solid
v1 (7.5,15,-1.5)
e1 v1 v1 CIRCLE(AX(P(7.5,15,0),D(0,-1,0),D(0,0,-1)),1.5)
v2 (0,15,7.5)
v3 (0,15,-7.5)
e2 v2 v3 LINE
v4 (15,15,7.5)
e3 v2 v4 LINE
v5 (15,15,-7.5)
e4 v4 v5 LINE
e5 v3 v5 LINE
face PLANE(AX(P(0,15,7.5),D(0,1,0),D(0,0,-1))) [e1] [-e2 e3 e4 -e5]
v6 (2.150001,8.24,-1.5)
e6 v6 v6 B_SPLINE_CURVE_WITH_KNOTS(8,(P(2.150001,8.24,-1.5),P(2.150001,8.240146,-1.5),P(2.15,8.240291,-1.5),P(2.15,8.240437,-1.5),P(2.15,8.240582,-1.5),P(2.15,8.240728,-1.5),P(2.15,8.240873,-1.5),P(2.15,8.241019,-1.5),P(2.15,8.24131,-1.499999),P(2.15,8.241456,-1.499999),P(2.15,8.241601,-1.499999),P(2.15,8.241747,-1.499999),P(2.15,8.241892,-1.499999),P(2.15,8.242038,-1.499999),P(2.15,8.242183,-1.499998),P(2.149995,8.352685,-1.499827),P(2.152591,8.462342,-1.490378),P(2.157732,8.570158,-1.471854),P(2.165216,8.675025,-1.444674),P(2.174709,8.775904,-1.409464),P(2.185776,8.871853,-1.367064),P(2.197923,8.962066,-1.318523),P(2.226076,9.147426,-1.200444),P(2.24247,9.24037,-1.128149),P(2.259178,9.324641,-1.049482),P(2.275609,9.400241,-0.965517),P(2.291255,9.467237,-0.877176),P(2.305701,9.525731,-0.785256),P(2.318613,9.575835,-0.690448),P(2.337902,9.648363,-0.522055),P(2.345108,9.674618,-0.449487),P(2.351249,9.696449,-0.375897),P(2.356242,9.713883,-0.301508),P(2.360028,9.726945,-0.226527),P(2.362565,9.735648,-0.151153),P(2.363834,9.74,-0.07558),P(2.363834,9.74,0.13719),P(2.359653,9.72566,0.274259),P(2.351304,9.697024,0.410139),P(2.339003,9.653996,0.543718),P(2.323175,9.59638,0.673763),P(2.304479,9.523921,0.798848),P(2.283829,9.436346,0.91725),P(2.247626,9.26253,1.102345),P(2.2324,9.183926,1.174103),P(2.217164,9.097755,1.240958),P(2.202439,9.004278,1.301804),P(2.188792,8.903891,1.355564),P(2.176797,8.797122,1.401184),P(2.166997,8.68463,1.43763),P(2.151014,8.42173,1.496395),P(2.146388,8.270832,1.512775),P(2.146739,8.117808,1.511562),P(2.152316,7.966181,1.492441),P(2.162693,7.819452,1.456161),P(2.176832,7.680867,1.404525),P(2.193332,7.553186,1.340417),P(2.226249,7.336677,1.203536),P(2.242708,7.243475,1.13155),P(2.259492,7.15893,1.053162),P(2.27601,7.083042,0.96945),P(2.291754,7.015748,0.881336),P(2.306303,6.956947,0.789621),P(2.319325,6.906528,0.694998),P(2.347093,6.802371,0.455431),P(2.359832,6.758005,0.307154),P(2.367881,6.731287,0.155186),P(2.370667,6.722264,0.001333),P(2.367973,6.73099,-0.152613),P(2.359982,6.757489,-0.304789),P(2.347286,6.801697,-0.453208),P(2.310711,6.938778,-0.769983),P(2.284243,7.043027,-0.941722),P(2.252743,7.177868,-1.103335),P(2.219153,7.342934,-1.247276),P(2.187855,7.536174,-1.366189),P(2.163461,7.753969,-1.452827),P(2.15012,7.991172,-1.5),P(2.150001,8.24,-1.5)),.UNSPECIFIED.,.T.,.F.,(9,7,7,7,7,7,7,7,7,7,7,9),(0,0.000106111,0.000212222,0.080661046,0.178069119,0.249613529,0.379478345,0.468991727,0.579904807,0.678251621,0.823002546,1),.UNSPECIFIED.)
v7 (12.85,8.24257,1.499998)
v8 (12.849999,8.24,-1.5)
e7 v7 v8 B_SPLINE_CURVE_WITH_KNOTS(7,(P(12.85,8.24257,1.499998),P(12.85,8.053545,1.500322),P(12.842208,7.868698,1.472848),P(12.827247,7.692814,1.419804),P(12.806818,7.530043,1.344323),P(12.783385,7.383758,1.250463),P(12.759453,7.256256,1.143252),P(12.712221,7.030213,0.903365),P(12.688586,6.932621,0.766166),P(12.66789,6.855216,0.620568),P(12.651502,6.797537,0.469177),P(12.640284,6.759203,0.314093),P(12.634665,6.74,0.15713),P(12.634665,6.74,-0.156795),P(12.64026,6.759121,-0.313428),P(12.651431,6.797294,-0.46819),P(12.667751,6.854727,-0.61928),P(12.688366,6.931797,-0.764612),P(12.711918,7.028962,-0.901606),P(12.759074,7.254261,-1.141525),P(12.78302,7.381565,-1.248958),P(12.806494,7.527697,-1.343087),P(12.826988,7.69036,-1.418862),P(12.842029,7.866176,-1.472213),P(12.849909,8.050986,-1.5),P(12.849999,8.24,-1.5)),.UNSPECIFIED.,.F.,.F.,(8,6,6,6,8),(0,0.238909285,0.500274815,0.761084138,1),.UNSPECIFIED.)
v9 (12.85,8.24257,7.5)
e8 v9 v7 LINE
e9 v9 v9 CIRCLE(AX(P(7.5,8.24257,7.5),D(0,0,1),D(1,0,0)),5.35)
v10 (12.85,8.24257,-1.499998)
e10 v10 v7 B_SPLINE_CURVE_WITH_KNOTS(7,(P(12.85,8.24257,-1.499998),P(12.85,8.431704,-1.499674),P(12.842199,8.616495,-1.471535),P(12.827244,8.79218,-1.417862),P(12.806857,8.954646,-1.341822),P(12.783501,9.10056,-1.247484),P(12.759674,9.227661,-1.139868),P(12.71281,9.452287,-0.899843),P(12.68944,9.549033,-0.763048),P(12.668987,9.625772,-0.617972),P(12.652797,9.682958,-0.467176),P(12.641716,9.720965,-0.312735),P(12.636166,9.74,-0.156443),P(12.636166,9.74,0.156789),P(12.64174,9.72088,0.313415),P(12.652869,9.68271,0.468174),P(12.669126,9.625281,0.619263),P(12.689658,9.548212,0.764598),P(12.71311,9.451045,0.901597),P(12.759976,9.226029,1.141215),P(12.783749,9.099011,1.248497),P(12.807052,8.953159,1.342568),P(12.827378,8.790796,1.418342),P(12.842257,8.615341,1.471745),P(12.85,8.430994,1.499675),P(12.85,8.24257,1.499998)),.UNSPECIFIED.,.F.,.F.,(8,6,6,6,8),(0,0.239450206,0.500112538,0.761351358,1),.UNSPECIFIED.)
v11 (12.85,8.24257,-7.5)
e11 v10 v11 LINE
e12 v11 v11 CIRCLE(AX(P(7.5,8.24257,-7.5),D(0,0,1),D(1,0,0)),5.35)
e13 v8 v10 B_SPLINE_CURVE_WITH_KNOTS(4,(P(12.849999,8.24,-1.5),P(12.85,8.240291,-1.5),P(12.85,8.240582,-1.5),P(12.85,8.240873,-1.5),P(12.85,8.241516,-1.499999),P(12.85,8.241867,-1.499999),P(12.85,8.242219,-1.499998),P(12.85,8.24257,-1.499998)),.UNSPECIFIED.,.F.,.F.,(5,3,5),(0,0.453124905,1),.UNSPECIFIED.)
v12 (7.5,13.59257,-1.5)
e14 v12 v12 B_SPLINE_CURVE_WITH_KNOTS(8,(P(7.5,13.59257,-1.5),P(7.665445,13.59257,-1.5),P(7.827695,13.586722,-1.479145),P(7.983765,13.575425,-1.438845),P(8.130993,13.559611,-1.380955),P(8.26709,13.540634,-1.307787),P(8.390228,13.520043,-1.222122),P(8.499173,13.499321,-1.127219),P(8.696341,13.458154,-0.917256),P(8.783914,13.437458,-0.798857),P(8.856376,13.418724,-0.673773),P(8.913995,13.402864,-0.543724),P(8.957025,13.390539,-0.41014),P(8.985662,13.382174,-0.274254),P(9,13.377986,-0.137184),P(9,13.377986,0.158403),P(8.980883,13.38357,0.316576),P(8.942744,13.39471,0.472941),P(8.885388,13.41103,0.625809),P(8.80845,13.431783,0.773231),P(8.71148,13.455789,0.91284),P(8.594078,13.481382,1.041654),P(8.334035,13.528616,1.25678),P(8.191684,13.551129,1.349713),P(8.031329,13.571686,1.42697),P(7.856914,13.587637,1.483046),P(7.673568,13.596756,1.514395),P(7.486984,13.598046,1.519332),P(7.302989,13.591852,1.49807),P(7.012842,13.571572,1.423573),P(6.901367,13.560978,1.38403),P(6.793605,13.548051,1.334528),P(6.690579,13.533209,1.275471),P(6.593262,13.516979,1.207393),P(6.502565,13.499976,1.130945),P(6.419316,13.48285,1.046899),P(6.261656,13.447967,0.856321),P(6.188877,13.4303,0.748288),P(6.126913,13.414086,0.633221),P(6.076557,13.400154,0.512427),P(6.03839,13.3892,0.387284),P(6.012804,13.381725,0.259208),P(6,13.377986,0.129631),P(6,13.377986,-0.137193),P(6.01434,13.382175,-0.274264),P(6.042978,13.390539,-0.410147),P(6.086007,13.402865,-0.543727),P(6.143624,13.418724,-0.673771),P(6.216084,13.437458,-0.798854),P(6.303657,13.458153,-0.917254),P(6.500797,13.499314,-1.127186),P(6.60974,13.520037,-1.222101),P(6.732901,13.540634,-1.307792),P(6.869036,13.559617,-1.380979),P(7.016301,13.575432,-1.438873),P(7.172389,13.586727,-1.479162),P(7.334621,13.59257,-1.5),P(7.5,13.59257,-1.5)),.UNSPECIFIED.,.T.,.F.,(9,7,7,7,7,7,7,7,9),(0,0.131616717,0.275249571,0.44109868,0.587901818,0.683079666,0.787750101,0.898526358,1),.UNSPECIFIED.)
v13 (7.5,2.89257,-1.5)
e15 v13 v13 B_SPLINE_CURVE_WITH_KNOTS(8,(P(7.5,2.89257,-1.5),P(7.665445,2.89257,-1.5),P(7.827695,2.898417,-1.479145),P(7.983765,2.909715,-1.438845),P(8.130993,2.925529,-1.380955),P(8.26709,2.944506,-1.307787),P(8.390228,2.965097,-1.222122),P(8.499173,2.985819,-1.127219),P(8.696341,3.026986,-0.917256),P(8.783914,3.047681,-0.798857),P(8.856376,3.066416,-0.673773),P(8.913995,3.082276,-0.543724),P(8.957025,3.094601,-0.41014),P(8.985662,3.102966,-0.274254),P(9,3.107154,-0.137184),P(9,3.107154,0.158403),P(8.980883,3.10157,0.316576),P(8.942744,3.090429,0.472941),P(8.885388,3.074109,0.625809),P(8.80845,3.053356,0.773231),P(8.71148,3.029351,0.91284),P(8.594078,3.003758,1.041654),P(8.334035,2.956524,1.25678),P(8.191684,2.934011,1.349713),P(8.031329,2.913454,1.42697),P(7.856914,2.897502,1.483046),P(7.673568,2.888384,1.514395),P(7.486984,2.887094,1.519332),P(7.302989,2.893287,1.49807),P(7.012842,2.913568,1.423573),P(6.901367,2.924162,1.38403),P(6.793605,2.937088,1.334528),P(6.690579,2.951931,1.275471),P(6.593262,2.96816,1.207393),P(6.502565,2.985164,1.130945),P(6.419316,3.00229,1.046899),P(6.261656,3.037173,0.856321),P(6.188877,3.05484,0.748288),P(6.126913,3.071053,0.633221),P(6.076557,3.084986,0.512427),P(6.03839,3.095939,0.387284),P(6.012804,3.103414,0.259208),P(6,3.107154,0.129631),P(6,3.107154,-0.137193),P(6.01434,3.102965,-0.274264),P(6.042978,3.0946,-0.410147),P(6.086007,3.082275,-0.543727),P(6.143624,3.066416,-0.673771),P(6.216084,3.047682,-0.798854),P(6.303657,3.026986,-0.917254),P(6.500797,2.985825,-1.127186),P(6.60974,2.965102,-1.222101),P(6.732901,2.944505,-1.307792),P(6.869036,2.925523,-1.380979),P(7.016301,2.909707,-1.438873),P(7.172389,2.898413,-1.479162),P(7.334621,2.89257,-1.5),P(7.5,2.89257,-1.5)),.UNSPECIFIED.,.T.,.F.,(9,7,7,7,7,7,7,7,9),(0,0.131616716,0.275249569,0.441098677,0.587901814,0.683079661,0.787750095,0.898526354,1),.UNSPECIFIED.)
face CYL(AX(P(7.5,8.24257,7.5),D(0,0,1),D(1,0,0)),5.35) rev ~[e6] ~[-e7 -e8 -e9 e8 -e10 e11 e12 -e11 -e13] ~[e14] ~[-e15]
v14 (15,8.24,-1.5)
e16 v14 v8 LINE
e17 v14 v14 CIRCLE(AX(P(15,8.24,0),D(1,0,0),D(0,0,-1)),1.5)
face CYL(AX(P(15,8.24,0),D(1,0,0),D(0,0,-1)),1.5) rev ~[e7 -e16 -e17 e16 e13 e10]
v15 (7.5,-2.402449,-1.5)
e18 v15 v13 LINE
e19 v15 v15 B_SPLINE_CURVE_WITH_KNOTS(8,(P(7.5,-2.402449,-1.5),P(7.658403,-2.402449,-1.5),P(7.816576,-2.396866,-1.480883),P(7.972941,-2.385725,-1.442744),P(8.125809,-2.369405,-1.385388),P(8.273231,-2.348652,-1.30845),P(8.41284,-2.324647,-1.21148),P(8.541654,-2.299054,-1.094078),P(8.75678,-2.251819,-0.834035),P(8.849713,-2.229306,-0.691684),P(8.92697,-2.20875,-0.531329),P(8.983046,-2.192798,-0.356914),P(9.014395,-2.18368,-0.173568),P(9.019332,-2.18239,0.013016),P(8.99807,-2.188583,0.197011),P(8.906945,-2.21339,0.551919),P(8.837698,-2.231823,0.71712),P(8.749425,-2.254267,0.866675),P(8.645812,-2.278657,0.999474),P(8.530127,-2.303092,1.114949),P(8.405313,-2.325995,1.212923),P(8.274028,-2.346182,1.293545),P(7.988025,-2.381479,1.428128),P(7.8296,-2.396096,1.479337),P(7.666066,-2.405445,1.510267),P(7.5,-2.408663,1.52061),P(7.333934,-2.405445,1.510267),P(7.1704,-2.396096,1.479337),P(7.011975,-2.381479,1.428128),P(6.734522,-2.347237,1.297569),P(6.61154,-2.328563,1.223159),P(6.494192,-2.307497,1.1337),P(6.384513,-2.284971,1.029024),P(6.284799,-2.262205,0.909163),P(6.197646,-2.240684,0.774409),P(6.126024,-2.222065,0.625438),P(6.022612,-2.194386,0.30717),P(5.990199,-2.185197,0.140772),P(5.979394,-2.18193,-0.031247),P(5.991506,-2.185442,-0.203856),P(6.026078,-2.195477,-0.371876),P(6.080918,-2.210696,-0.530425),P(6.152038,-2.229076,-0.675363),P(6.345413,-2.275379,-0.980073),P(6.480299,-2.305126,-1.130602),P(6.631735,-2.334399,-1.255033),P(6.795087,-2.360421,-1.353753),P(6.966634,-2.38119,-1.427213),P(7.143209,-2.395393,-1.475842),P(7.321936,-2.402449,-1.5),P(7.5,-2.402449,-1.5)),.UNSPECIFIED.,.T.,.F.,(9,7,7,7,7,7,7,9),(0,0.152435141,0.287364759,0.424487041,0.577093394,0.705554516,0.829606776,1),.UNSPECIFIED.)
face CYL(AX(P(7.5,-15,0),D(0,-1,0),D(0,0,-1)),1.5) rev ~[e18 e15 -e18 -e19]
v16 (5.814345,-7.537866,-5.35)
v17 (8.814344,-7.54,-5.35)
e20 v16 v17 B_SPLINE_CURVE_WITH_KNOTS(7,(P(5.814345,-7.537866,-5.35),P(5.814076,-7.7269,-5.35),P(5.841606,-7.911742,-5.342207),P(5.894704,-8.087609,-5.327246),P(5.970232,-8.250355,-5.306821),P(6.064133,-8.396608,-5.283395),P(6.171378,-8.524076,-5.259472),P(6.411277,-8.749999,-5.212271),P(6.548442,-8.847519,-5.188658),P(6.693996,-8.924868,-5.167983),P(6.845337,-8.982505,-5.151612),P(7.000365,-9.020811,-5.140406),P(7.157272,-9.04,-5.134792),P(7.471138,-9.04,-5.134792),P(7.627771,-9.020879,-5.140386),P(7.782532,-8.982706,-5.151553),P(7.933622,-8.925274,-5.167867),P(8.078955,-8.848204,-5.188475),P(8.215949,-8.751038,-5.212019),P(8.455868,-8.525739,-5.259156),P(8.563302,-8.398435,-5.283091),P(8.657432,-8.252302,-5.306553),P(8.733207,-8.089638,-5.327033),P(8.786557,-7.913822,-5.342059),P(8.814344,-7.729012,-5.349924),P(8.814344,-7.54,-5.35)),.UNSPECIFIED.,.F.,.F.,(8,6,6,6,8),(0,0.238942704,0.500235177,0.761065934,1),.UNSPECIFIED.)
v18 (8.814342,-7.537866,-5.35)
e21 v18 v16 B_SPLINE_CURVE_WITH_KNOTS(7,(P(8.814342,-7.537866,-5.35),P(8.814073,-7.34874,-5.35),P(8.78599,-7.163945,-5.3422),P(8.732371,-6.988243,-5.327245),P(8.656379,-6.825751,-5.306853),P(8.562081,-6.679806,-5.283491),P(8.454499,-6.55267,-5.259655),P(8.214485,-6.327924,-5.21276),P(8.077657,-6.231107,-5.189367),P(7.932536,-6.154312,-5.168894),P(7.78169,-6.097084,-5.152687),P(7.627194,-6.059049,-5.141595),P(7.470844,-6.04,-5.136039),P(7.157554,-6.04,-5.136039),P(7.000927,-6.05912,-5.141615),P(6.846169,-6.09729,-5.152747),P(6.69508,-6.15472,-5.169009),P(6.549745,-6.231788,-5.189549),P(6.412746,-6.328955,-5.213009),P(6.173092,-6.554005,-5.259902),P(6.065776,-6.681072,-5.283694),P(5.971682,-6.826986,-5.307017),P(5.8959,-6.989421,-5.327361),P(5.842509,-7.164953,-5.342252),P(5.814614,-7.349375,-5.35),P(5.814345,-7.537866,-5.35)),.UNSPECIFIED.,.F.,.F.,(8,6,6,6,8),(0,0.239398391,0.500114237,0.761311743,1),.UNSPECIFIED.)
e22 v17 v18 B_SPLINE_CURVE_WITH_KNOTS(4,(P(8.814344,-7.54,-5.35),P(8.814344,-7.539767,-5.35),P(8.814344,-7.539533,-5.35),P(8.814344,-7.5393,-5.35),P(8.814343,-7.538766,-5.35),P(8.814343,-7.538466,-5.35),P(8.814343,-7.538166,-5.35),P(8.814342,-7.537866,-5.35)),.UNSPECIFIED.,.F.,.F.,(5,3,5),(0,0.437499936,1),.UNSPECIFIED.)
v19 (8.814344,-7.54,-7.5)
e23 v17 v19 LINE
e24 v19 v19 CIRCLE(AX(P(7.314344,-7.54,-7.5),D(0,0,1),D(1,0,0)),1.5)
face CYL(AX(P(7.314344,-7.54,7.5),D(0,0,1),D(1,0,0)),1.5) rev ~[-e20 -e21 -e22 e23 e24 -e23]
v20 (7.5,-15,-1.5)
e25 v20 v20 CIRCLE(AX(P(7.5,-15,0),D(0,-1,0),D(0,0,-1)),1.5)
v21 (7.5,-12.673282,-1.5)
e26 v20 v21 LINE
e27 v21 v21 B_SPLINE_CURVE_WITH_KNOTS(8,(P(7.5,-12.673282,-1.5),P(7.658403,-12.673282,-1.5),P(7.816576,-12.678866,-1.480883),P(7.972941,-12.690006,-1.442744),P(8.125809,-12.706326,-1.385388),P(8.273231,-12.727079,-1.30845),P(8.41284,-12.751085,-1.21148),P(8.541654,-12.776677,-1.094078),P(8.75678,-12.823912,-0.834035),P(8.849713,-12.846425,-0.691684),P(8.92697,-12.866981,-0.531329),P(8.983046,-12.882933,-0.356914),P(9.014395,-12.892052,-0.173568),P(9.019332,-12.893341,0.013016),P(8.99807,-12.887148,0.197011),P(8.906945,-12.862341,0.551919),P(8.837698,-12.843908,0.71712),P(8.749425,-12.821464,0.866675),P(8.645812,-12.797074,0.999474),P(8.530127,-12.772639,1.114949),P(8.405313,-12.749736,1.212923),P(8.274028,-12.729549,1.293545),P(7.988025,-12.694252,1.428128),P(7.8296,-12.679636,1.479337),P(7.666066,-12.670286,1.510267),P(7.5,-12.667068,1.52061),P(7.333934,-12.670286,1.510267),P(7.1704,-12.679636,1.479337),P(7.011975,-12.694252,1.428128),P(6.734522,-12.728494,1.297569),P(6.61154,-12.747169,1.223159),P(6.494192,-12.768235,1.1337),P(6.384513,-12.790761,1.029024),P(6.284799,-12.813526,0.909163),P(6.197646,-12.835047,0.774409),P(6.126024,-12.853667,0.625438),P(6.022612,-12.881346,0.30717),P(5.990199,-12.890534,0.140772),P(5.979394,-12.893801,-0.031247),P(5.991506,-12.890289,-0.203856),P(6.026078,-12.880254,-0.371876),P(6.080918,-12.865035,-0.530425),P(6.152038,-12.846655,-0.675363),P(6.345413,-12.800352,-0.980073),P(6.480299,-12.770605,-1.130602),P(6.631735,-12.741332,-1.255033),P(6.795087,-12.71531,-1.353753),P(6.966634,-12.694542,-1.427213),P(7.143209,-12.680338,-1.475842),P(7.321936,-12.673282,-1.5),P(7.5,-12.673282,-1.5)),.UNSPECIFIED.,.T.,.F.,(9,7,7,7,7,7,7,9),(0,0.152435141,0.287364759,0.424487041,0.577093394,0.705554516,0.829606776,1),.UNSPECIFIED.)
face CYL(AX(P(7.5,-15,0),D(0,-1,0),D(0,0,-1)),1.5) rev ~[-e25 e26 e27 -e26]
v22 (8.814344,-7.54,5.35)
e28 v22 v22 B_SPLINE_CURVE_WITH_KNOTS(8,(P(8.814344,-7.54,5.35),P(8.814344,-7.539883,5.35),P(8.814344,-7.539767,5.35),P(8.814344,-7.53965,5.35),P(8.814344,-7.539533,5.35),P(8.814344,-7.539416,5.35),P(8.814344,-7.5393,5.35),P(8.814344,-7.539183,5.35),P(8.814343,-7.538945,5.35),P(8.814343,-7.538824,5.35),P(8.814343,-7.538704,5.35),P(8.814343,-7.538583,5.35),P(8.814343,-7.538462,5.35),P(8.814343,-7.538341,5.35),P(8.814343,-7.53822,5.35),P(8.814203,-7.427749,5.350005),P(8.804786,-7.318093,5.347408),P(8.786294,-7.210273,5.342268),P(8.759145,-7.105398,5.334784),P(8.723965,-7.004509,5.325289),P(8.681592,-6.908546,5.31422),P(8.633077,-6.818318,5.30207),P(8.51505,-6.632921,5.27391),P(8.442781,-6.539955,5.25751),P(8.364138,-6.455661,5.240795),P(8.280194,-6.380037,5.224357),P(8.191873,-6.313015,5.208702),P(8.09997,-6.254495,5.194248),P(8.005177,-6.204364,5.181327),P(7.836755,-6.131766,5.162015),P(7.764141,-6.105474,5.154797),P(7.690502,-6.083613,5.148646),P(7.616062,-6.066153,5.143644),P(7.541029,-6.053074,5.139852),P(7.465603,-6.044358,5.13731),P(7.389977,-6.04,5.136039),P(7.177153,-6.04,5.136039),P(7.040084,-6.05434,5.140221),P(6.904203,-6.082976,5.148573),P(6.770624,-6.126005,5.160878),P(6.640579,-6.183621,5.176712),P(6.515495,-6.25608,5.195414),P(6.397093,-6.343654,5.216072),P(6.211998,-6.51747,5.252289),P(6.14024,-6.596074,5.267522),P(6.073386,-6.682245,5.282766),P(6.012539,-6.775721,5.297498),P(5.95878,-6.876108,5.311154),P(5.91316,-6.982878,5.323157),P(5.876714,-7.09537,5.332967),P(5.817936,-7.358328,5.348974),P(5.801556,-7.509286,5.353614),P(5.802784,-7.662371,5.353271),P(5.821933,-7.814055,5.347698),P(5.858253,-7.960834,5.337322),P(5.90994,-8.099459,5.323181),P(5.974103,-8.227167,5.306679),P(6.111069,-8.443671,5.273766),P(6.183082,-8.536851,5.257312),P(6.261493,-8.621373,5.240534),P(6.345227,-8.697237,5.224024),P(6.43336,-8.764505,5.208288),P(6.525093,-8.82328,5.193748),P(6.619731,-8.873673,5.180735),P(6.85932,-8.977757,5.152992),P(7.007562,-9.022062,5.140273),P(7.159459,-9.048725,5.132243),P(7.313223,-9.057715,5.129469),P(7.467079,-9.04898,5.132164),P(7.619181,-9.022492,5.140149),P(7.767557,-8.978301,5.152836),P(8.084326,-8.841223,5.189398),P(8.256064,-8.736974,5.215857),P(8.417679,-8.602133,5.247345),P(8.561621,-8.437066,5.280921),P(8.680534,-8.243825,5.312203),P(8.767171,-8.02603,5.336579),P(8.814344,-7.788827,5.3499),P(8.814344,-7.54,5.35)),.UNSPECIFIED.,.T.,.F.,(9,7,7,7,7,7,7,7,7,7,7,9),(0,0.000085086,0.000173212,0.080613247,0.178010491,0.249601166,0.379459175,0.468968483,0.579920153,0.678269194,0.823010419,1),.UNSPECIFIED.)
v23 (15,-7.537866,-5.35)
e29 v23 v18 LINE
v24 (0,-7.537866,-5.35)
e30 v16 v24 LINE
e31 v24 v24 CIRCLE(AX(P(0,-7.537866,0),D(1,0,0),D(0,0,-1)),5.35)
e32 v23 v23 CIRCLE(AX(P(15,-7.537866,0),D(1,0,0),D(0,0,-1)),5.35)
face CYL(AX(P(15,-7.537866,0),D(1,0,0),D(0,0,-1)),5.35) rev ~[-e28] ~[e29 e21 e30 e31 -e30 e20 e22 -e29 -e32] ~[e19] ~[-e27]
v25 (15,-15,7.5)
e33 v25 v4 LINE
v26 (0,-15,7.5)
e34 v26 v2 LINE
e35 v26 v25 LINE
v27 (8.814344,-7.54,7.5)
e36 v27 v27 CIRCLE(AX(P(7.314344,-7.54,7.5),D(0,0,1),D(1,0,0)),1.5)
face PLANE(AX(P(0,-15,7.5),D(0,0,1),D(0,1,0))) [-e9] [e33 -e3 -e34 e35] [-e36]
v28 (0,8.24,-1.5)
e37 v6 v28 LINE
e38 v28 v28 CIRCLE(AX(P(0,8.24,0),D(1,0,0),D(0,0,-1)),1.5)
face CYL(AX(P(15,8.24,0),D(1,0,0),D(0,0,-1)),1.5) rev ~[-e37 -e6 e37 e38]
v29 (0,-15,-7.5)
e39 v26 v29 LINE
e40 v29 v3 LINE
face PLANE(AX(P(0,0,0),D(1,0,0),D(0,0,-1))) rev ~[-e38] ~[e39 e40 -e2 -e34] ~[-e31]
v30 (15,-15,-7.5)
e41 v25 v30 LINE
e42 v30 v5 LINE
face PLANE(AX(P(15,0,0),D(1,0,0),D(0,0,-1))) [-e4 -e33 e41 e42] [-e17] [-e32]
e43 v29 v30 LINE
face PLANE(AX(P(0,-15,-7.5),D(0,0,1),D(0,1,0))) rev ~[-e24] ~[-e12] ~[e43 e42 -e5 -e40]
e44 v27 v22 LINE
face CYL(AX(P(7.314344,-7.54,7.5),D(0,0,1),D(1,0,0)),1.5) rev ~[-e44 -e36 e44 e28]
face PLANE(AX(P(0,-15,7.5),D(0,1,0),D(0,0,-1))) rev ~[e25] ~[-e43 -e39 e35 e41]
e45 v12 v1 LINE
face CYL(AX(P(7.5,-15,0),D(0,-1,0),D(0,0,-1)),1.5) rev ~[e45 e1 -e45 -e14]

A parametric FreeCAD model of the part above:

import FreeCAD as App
import Part
import Sketcher

V = App.Vector


def add_polygon(sketch, points):
    """Adds a closed chain of lines whose ends are joined by coincident constraints."""
    first, n = sketch.GeometryCount, len(points)
    for a, b in zip(points, points[1:] + points[:1]):
        sketch.addGeometry(Part.LineSegment(App.Vector(*a, 0), App.Vector(*b, 0)), False)
    for i in range(n):
        sketch.addConstraint(Sketcher.Constraint("Coincident", first + i, 2, first + (i + 1) % n, 1))

doc = App.newDocument("Part")
body = doc.addObject("PartDesign::Body", "Body")

# Sketch on YZ plane
sketch1 = doc.addObject("Sketcher::SketchObject", "Sketch")
body.addObject(sketch1)
sketch1.AttachmentSupport = (doc.YZ_Plane, [""])
sketch1.MapMode = "FlatFace"
add_polygon(sketch1, [(15, 8), (-15, 8), (-15, -8), (15, -8)])  # lines 0-3
sketch1.addConstraint([
    Sketcher.Constraint("Horizontal", 0),
    Sketcher.Constraint("Vertical", 1),
    Sketcher.Constraint("Horizontal", 2),
    Sketcher.Constraint("Vertical", 3),
    Sketcher.Constraint("Symmetric", 0, 2, 2, 2, -1, 1),
    Sketcher.Constraint("DistanceX", 0, 2, 0, 1, 30.0),
    Sketcher.Constraint("DistanceY", 1, 2, 1, 1, 15.0),
])
pad1 = doc.addObject("PartDesign::Pad", "Pad")
body.addObject(pad1)
pad1.Profile = sketch1
pad1.Length = 15

# Sketch on YZ plane
sketch2 = doc.addObject("Sketcher::SketchObject", "Sketch001")
body.addObject(sketch2)
sketch2.AttachmentSupport = (doc.YZ_Plane, [""])
sketch2.MapMode = "FlatFace"
sketch2.AttachmentOffset = App.Placement(V(0, 0, 15), App.Rotation())
sketch2.addGeometry(Part.Circle(V(-8, 0, 0), V(0, 0, 1), 5), False)
sketch2.addConstraint([
    Sketcher.Constraint("PointOnObject", 0, 3, -1),
    Sketcher.Constraint("Diameter", 0, 10.7),
    Sketcher.Constraint("DistanceX", 0, 3, -1, 1, 7.537866),
])
pocket1 = doc.addObject("PartDesign::Pocket", "Pocket")
body.addObject(pocket1)
pocket1.Profile = sketch2
pocket1.Length = 15

# Sketch on XY plane
sketch3 = doc.addObject("Sketcher::SketchObject", "Sketch002")
body.addObject(sketch3)
sketch3.AttachmentSupport = (doc.XY_Plane, [""])
sketch3.MapMode = "FlatFace"
sketch3.AttachmentOffset = App.Placement(V(0, 0, 7.5), App.Rotation())
sketch3.addGeometry(Part.Circle(V(8, 8, 0), V(0, 0, 1), 5), False)
sketch3.addConstraint([
    Sketcher.Constraint("Diameter", 0, 10.7),
    Sketcher.Constraint("DistanceX", -1, 1, 0, 3, 7.5),
    Sketcher.Constraint("DistanceY", -1, 1, 0, 3, 8.24257),
])
pocket2 = doc.addObject("PartDesign::Pocket", "Pocket001")
body.addObject(pocket2)
pocket2.Profile = sketch3
pocket2.Length = 15

# Sketch on XY plane
sketch4 = doc.addObject("Sketcher::SketchObject", "Sketch003")
body.addObject(sketch4)
sketch4.AttachmentSupport = (doc.XY_Plane, [""])
sketch4.MapMode = "FlatFace"
sketch4.AttachmentOffset = App.Placement(V(0, 0, 7.5), App.Rotation())
sketch4.addGeometry(Part.Circle(V(7.3, -7.5, 0), V(0, 0, 1), 1.5), False)
sketch4.addConstraint([
    Sketcher.Constraint("Diameter", 0, 3.0),
    Sketcher.Constraint("DistanceY", 0, 3, -1, 1, 7.54),
    Sketcher.Constraint("DistanceX", -1, 1, 0, 3, 7.314344),
])
pocket3 = doc.addObject("PartDesign::Pocket", "Pocket002")
body.addObject(pocket3)
pocket3.Profile = sketch4
pocket3.Length = 20

# Sketch on YZ plane
sketch5 = doc.addObject("Sketcher::SketchObject", "Sketch004")
body.addObject(sketch5)
sketch5.AttachmentSupport = (doc.YZ_Plane, [""])
sketch5.MapMode = "FlatFace"
sketch5.AttachmentOffset = App.Placement(V(0, 0, 15), App.Rotation())
sketch5.addGeometry(Part.Circle(V(8.2, 0, 0), V(0, 0, 1), 1.5), False)
sketch5.addConstraint([
    Sketcher.Constraint("PointOnObject", 0, 3, -1),
    Sketcher.Constraint("Diameter", 0, 3.0),
    Sketcher.Constraint("DistanceX", -1, 1, 0, 3, 8.24),
])
pocket4 = doc.addObject("PartDesign::Pocket", "Pocket003")
body.addObject(pocket4)
pocket4.Profile = sketch5
pocket4.Length = 20

# Sketch on XZ plane
sketch6 = doc.addObject("Sketcher::SketchObject", "Sketch005")
body.addObject(sketch6)
sketch6.AttachmentSupport = (doc.XZ_Plane, [""])
sketch6.MapMode = "FlatFace"
sketch6.AttachmentOffset = App.Placement(V(0, 0, 15), App.Rotation())
sketch6.addGeometry(Part.Circle(V(7.5, 0, 0), V(0, 0, 1), 1.5), False)
sketch6.addConstraint([
    Sketcher.Constraint("PointOnObject", 0, 3, -1),
    Sketcher.Constraint("Diameter", 0, 3.0),
    Sketcher.Constraint("DistanceX", -1, 1, 0, 3, 7.5),
])
pocket5 = doc.addObject("PartDesign::Pocket", "Pocket004")
body.addObject(pocket5)
pocket5.Profile = sketch6
pocket5.Length = 50

doc.recompute()
